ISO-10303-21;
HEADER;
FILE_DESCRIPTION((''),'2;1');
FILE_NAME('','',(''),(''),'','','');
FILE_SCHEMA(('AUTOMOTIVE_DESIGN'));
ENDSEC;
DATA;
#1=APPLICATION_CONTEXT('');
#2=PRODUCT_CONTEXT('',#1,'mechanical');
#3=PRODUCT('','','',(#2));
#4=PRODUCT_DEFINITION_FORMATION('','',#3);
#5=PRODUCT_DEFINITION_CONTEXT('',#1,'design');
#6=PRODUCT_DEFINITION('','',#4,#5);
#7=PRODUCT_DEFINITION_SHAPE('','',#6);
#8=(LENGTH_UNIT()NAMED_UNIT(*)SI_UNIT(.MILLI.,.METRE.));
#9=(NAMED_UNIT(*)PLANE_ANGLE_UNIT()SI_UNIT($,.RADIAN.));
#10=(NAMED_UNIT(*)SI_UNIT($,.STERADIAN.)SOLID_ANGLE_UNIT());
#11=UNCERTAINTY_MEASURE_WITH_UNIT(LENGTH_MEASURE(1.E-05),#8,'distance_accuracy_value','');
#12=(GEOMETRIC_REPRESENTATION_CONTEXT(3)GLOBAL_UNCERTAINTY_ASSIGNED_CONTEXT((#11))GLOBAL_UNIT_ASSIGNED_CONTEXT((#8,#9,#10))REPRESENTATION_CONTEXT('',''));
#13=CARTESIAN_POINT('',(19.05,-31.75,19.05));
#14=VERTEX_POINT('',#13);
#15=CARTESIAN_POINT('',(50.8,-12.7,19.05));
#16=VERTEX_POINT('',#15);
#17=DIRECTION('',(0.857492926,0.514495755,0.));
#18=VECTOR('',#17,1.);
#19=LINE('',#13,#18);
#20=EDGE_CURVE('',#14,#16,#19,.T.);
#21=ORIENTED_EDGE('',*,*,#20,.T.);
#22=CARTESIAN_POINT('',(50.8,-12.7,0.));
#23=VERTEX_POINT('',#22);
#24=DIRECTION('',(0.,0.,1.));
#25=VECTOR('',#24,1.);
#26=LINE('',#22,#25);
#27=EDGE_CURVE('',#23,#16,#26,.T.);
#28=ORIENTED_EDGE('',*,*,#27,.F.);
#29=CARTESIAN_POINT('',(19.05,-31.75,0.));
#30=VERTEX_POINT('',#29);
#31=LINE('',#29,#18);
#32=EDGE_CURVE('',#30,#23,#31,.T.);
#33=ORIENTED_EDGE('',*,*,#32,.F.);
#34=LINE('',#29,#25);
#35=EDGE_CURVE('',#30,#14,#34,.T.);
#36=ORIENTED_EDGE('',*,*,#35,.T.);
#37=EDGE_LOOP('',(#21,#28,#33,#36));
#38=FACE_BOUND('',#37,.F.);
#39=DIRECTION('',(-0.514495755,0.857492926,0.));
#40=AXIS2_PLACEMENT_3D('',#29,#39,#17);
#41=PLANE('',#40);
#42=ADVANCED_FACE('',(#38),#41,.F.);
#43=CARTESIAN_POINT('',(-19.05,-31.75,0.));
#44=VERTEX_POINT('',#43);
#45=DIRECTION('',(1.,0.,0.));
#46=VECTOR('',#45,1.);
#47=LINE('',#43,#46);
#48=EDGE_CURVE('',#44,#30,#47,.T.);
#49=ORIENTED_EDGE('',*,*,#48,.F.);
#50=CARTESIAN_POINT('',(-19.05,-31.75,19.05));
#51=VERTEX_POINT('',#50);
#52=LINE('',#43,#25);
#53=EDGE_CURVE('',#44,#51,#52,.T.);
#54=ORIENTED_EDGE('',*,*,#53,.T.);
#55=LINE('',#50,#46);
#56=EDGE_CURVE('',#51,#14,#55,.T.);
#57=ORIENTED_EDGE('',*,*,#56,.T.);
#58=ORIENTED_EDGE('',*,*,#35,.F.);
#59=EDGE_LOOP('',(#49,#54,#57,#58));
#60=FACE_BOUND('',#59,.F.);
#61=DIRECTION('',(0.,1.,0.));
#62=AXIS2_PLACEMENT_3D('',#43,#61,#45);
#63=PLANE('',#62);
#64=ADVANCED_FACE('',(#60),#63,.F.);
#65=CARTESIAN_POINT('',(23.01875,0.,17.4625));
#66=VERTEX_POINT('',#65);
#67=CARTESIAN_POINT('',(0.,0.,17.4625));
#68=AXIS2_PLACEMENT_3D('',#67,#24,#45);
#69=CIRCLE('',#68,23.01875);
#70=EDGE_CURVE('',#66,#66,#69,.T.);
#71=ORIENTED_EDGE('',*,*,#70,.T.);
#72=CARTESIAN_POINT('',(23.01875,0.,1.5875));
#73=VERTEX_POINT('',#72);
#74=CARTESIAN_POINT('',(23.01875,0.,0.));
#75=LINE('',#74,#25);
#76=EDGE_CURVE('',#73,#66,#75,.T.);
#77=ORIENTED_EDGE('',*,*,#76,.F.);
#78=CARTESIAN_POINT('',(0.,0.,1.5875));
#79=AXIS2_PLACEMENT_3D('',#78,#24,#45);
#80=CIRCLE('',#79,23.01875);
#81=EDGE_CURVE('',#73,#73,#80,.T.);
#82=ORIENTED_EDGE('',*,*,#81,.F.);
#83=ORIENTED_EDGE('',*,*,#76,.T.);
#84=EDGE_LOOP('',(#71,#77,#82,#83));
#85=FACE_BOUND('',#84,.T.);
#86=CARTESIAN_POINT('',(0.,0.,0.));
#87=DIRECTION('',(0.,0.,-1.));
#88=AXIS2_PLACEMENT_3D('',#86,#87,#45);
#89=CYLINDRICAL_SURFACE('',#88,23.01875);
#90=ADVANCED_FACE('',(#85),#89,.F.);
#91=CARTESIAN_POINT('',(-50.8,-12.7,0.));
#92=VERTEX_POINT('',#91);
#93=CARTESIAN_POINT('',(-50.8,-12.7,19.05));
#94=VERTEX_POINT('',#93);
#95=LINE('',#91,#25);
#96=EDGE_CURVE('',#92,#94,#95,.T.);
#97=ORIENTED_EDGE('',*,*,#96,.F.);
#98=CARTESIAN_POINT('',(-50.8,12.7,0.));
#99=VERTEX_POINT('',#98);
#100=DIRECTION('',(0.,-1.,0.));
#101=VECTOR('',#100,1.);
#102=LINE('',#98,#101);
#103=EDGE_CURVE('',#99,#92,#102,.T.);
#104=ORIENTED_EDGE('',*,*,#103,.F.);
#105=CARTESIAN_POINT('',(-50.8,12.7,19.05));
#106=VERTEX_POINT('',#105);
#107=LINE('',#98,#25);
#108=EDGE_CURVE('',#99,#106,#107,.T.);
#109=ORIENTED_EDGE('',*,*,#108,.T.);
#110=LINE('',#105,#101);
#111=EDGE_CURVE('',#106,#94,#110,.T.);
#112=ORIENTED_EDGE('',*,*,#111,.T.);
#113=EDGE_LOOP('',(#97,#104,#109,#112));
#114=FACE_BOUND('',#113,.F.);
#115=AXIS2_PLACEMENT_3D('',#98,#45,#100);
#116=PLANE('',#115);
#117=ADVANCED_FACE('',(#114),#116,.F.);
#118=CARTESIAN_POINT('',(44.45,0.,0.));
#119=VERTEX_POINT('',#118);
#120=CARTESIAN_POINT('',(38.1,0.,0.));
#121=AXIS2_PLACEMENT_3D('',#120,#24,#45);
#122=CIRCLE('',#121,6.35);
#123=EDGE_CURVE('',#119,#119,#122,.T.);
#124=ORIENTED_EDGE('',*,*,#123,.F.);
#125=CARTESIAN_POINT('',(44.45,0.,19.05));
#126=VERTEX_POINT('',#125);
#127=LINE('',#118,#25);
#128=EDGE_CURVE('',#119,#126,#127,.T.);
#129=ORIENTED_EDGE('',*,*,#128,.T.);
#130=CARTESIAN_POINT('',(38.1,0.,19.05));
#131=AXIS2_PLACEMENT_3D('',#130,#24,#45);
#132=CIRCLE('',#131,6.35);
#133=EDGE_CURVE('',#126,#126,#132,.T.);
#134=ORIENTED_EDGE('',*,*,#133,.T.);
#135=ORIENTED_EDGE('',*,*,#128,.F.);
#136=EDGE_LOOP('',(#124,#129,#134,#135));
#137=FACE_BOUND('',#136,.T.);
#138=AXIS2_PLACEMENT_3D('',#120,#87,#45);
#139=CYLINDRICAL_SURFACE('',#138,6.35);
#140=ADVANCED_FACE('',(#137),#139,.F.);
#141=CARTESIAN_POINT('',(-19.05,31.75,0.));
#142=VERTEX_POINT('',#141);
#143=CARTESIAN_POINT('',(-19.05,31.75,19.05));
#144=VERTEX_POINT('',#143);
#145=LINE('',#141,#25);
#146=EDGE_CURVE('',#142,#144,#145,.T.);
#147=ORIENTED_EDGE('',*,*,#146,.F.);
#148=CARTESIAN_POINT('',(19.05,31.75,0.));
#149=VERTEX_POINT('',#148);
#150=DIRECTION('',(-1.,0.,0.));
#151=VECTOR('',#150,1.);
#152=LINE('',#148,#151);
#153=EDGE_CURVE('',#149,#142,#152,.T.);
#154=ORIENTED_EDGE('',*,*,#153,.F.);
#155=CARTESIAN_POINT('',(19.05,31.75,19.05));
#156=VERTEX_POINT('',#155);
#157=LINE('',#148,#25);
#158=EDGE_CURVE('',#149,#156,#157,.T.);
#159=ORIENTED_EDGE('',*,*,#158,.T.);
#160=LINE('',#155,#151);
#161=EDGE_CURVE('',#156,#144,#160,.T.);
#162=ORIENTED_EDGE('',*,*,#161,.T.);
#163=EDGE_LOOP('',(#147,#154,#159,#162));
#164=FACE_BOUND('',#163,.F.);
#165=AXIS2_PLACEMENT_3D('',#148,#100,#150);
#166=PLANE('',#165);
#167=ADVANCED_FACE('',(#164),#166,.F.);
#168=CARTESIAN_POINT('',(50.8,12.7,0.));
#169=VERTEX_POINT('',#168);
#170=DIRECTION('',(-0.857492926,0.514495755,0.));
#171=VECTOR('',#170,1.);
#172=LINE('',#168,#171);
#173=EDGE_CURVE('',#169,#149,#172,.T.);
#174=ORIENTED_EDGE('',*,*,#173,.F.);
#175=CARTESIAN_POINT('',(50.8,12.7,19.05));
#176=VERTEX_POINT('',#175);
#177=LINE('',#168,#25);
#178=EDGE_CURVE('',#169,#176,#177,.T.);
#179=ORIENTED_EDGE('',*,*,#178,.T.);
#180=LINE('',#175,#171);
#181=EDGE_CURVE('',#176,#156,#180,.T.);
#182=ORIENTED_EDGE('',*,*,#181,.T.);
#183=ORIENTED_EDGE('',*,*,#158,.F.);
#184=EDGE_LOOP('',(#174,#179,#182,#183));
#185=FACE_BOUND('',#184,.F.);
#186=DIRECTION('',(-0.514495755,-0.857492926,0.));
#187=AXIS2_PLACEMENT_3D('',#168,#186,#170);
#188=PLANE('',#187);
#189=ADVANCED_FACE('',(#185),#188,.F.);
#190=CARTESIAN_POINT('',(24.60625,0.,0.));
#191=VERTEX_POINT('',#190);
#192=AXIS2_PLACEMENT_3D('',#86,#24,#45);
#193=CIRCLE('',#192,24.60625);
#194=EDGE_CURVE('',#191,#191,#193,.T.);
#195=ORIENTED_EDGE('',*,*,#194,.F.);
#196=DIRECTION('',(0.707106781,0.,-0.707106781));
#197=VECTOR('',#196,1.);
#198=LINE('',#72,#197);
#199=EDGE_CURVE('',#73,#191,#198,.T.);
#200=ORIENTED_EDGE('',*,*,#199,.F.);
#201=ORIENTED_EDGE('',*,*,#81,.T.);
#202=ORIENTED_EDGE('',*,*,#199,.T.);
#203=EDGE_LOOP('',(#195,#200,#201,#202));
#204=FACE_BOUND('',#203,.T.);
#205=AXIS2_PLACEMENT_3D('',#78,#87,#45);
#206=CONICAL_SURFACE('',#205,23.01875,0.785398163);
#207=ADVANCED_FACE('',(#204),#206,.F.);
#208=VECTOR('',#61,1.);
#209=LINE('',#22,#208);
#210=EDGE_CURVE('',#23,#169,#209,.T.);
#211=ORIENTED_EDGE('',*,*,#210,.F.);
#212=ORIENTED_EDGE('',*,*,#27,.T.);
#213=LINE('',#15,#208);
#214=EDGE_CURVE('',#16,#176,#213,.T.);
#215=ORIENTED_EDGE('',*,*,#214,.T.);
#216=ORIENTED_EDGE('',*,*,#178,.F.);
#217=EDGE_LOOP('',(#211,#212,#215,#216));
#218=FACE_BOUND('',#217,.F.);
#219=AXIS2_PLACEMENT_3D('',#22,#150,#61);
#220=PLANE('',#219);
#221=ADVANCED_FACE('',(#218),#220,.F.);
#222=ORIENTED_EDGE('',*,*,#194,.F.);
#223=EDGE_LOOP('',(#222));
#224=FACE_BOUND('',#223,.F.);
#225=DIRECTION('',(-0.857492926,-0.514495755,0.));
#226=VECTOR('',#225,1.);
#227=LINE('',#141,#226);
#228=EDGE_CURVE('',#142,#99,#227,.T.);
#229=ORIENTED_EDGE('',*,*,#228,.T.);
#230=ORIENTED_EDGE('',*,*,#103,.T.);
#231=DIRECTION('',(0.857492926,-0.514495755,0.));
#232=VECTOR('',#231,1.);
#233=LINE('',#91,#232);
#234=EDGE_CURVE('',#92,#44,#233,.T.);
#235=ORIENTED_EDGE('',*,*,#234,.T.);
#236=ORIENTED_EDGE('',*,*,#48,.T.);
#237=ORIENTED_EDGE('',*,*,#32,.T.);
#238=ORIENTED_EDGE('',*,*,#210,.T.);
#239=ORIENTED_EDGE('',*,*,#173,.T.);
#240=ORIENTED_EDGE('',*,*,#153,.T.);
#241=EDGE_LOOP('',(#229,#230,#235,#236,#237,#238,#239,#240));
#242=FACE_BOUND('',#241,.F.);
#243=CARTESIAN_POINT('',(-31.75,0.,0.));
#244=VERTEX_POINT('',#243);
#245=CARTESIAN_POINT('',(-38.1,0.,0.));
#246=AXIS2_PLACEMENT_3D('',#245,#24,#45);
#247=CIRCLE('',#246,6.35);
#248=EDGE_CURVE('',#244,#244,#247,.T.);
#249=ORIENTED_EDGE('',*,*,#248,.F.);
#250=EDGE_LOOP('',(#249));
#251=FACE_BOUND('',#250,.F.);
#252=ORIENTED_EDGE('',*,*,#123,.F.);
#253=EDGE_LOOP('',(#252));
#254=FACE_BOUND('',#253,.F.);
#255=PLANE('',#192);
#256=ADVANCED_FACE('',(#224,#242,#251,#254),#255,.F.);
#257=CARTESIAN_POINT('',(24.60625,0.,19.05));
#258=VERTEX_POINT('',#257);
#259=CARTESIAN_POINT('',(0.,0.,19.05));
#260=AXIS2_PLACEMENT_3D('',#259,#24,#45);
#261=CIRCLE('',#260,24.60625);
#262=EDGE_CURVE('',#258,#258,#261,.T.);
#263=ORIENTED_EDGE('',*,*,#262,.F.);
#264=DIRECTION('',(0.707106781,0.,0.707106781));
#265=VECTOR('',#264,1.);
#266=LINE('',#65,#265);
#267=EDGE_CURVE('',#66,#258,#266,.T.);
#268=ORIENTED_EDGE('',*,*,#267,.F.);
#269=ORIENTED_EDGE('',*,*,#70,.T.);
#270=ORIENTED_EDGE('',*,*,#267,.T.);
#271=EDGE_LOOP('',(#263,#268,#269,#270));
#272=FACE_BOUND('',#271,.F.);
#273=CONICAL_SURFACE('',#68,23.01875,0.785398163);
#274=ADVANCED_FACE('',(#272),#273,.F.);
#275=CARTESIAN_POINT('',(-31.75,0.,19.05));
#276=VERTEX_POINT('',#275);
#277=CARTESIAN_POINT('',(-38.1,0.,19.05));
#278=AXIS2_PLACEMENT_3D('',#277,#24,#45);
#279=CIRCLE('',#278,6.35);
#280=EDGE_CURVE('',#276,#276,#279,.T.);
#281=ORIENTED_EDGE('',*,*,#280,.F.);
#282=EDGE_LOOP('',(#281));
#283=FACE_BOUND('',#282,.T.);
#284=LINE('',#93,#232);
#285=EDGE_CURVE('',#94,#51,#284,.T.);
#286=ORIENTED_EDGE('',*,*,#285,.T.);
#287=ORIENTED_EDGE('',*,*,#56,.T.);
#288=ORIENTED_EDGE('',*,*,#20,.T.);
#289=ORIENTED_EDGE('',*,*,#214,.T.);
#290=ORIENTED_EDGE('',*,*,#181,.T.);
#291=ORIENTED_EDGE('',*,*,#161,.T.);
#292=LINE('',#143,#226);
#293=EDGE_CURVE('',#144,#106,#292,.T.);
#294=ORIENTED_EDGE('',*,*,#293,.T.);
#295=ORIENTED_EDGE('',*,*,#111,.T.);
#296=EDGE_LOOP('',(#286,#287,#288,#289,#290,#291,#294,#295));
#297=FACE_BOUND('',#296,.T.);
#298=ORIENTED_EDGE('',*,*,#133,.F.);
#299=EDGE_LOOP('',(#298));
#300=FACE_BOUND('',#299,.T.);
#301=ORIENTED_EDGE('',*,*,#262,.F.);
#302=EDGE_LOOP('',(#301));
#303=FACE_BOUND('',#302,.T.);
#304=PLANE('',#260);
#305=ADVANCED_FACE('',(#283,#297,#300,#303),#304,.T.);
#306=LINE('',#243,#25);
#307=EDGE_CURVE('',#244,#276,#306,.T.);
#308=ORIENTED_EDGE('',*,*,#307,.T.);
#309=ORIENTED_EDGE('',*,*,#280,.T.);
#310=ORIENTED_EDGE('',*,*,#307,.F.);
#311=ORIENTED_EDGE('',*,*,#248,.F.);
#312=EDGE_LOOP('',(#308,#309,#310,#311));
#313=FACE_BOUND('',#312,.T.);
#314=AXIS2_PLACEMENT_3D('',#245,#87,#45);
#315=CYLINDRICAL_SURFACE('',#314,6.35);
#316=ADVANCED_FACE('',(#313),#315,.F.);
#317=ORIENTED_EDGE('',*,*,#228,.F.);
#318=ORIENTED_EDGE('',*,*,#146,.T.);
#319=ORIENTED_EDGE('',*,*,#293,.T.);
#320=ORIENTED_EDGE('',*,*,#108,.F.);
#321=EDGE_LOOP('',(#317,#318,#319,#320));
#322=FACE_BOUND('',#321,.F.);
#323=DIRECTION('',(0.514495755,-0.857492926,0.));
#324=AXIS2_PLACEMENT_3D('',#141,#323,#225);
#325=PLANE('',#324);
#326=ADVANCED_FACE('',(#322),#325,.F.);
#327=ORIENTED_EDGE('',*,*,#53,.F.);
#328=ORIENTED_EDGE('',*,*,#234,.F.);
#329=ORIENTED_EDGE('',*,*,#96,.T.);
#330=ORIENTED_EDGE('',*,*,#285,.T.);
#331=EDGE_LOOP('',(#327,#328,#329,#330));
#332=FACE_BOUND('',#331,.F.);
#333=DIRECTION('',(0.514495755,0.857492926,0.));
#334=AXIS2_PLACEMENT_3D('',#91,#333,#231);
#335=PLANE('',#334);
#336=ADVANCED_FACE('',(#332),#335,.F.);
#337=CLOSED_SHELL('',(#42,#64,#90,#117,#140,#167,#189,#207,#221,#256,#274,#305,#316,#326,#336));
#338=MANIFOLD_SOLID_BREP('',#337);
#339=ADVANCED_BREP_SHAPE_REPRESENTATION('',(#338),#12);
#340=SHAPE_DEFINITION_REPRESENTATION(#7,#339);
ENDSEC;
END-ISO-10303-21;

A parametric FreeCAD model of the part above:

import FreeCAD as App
import Part
import Sketcher
Q = App.Units.Quantity


def edges_at(feature, points):
    """Names of the edges that pass closest to the given points."""
    edges = feature.Shape.Edges
    near = lambda p: min(range(len(edges)), key=lambda i: edges[i].distToShape(Part.Vertex(*p))[0])
    return sorted({f"Edge{near(p) + 1}" for p in points})

doc = App.newDocument("Part")
body = doc.addObject("PartDesign::Body", "Body")

# Sketch on XY plane
sketch1 = doc.addObject("Sketcher::SketchObject", "Sketch")
body.addObject(sketch1)
sketch1.AttachmentSupport = (doc.XY_Plane, [""])
sketch1.MapMode = "FlatFace"
sketch1.addGeometry([
    Part.LineSegment(App.Vector(-19, -32, 0), App.Vector(19, -32, 0)),  # 0
    Part.LineSegment(App.Vector(19, -32, 0), App.Vector(51, -13, 0)),  # 1
    Part.LineSegment(App.Vector(51, -13, 0), App.Vector(51, 13, 0)),  # 2
    Part.LineSegment(App.Vector(51, 13, 0), App.Vector(19, 32, 0)),  # 3
    Part.LineSegment(App.Vector(19, 32, 0), App.Vector(-19, 32, 0)),  # 4
    Part.LineSegment(App.Vector(-19, 32, 0), App.Vector(-51, 13, 0)),  # 5
    Part.LineSegment(App.Vector(-51, 13, 0), App.Vector(-51, -13, 0)),  # 6
    Part.LineSegment(App.Vector(-51, -13, 0), App.Vector(-19, -32, 0)),  # 7
    Part.Circle(App.Vector(-38, 0, 0), App.Vector(0, 0, 1), 6),  # 8
    Part.Circle(App.Vector(0, 0, 0), App.Vector(0, 0, 1), 23),  # 9
    Part.Circle(App.Vector(38, 0, 0), App.Vector(0, 0, 1), 6),  # 10
], False)
sketch1.addConstraint([
    Sketcher.Constraint("Coincident", 0, 2, 1, 1),
    Sketcher.Constraint("Coincident", 1, 2, 2, 1),
    Sketcher.Constraint("Coincident", 2, 2, 3, 1),
    Sketcher.Constraint("Coincident", 3, 2, 4, 1),
    Sketcher.Constraint("Coincident", 4, 2, 5, 1),
    Sketcher.Constraint("Coincident", 5, 2, 6, 1),
    Sketcher.Constraint("Coincident", 6, 2, 7, 1),
    Sketcher.Constraint("Coincident", 7, 2, 0, 1),
    Sketcher.Constraint("Horizontal", 0),
    Sketcher.Constraint("Vertical", 2),
    Sketcher.Constraint("Horizontal", 4),
    Sketcher.Constraint("Vertical", 6),
    Sketcher.Constraint("Coincident", 9, 3, -1, 1),
    Sketcher.Constraint("Equal", 8, 10),
    Sketcher.Constraint("Symmetric", 8, 3, 10, 3, -1, 1),
    Sketcher.Constraint("Symmetric", 0, 2, 4, 2, -1, 1),
    Sketcher.Constraint("Symmetric", 1, 2, 5, 2, -1, 1),
    Sketcher.Constraint("PointOnObject", 8, 3, -1),
    Sketcher.Constraint("Parallel", 3, 7),
    Sketcher.Constraint("Horizontal", 2, 2, 5, 2),
    Sketcher.Constraint("Horizontal", 1, 2, 6, 2),
    Sketcher.Constraint("Vertical", 0, 2, 3, 2),
    Sketcher.Constraint("Diameter", 8, Q("0.5 in")),
    Sketcher.Constraint("DistanceY", 2, 1, 2, 2, Q("1 in")),
    Sketcher.Constraint("Diameter", 9, Q("1.8125 in")),
    Sketcher.Constraint("DistanceX", 0, 1, 0, 2, Q("1.5 in")),
    Sketcher.Constraint("DistanceX", -1, 1, 1, 2, Q("2 in")),
    Sketcher.Constraint("DistanceX", 8, 3, 10, 3, Q("3 in")),
    Sketcher.Constraint("DistanceY", 0, 2, 3, 2, Q("2.5 in")),
])
pad1 = doc.addObject("PartDesign::Pad", "Pad")
body.addObject(pad1)
pad1.Profile = sketch1
pad1.Length = Q("0.75 in")
doc.recompute()

chamfer = doc.addObject("PartDesign::Chamfer", "Chamfer")
body.addObject(chamfer)
chamfer.Base = (pad1, edges_at(pad1, [(-23.019, 0, 0), (-23.019, 0, 19.05)]))
chamfer.Size = Q("0.0625 in")

doc.recompute()
